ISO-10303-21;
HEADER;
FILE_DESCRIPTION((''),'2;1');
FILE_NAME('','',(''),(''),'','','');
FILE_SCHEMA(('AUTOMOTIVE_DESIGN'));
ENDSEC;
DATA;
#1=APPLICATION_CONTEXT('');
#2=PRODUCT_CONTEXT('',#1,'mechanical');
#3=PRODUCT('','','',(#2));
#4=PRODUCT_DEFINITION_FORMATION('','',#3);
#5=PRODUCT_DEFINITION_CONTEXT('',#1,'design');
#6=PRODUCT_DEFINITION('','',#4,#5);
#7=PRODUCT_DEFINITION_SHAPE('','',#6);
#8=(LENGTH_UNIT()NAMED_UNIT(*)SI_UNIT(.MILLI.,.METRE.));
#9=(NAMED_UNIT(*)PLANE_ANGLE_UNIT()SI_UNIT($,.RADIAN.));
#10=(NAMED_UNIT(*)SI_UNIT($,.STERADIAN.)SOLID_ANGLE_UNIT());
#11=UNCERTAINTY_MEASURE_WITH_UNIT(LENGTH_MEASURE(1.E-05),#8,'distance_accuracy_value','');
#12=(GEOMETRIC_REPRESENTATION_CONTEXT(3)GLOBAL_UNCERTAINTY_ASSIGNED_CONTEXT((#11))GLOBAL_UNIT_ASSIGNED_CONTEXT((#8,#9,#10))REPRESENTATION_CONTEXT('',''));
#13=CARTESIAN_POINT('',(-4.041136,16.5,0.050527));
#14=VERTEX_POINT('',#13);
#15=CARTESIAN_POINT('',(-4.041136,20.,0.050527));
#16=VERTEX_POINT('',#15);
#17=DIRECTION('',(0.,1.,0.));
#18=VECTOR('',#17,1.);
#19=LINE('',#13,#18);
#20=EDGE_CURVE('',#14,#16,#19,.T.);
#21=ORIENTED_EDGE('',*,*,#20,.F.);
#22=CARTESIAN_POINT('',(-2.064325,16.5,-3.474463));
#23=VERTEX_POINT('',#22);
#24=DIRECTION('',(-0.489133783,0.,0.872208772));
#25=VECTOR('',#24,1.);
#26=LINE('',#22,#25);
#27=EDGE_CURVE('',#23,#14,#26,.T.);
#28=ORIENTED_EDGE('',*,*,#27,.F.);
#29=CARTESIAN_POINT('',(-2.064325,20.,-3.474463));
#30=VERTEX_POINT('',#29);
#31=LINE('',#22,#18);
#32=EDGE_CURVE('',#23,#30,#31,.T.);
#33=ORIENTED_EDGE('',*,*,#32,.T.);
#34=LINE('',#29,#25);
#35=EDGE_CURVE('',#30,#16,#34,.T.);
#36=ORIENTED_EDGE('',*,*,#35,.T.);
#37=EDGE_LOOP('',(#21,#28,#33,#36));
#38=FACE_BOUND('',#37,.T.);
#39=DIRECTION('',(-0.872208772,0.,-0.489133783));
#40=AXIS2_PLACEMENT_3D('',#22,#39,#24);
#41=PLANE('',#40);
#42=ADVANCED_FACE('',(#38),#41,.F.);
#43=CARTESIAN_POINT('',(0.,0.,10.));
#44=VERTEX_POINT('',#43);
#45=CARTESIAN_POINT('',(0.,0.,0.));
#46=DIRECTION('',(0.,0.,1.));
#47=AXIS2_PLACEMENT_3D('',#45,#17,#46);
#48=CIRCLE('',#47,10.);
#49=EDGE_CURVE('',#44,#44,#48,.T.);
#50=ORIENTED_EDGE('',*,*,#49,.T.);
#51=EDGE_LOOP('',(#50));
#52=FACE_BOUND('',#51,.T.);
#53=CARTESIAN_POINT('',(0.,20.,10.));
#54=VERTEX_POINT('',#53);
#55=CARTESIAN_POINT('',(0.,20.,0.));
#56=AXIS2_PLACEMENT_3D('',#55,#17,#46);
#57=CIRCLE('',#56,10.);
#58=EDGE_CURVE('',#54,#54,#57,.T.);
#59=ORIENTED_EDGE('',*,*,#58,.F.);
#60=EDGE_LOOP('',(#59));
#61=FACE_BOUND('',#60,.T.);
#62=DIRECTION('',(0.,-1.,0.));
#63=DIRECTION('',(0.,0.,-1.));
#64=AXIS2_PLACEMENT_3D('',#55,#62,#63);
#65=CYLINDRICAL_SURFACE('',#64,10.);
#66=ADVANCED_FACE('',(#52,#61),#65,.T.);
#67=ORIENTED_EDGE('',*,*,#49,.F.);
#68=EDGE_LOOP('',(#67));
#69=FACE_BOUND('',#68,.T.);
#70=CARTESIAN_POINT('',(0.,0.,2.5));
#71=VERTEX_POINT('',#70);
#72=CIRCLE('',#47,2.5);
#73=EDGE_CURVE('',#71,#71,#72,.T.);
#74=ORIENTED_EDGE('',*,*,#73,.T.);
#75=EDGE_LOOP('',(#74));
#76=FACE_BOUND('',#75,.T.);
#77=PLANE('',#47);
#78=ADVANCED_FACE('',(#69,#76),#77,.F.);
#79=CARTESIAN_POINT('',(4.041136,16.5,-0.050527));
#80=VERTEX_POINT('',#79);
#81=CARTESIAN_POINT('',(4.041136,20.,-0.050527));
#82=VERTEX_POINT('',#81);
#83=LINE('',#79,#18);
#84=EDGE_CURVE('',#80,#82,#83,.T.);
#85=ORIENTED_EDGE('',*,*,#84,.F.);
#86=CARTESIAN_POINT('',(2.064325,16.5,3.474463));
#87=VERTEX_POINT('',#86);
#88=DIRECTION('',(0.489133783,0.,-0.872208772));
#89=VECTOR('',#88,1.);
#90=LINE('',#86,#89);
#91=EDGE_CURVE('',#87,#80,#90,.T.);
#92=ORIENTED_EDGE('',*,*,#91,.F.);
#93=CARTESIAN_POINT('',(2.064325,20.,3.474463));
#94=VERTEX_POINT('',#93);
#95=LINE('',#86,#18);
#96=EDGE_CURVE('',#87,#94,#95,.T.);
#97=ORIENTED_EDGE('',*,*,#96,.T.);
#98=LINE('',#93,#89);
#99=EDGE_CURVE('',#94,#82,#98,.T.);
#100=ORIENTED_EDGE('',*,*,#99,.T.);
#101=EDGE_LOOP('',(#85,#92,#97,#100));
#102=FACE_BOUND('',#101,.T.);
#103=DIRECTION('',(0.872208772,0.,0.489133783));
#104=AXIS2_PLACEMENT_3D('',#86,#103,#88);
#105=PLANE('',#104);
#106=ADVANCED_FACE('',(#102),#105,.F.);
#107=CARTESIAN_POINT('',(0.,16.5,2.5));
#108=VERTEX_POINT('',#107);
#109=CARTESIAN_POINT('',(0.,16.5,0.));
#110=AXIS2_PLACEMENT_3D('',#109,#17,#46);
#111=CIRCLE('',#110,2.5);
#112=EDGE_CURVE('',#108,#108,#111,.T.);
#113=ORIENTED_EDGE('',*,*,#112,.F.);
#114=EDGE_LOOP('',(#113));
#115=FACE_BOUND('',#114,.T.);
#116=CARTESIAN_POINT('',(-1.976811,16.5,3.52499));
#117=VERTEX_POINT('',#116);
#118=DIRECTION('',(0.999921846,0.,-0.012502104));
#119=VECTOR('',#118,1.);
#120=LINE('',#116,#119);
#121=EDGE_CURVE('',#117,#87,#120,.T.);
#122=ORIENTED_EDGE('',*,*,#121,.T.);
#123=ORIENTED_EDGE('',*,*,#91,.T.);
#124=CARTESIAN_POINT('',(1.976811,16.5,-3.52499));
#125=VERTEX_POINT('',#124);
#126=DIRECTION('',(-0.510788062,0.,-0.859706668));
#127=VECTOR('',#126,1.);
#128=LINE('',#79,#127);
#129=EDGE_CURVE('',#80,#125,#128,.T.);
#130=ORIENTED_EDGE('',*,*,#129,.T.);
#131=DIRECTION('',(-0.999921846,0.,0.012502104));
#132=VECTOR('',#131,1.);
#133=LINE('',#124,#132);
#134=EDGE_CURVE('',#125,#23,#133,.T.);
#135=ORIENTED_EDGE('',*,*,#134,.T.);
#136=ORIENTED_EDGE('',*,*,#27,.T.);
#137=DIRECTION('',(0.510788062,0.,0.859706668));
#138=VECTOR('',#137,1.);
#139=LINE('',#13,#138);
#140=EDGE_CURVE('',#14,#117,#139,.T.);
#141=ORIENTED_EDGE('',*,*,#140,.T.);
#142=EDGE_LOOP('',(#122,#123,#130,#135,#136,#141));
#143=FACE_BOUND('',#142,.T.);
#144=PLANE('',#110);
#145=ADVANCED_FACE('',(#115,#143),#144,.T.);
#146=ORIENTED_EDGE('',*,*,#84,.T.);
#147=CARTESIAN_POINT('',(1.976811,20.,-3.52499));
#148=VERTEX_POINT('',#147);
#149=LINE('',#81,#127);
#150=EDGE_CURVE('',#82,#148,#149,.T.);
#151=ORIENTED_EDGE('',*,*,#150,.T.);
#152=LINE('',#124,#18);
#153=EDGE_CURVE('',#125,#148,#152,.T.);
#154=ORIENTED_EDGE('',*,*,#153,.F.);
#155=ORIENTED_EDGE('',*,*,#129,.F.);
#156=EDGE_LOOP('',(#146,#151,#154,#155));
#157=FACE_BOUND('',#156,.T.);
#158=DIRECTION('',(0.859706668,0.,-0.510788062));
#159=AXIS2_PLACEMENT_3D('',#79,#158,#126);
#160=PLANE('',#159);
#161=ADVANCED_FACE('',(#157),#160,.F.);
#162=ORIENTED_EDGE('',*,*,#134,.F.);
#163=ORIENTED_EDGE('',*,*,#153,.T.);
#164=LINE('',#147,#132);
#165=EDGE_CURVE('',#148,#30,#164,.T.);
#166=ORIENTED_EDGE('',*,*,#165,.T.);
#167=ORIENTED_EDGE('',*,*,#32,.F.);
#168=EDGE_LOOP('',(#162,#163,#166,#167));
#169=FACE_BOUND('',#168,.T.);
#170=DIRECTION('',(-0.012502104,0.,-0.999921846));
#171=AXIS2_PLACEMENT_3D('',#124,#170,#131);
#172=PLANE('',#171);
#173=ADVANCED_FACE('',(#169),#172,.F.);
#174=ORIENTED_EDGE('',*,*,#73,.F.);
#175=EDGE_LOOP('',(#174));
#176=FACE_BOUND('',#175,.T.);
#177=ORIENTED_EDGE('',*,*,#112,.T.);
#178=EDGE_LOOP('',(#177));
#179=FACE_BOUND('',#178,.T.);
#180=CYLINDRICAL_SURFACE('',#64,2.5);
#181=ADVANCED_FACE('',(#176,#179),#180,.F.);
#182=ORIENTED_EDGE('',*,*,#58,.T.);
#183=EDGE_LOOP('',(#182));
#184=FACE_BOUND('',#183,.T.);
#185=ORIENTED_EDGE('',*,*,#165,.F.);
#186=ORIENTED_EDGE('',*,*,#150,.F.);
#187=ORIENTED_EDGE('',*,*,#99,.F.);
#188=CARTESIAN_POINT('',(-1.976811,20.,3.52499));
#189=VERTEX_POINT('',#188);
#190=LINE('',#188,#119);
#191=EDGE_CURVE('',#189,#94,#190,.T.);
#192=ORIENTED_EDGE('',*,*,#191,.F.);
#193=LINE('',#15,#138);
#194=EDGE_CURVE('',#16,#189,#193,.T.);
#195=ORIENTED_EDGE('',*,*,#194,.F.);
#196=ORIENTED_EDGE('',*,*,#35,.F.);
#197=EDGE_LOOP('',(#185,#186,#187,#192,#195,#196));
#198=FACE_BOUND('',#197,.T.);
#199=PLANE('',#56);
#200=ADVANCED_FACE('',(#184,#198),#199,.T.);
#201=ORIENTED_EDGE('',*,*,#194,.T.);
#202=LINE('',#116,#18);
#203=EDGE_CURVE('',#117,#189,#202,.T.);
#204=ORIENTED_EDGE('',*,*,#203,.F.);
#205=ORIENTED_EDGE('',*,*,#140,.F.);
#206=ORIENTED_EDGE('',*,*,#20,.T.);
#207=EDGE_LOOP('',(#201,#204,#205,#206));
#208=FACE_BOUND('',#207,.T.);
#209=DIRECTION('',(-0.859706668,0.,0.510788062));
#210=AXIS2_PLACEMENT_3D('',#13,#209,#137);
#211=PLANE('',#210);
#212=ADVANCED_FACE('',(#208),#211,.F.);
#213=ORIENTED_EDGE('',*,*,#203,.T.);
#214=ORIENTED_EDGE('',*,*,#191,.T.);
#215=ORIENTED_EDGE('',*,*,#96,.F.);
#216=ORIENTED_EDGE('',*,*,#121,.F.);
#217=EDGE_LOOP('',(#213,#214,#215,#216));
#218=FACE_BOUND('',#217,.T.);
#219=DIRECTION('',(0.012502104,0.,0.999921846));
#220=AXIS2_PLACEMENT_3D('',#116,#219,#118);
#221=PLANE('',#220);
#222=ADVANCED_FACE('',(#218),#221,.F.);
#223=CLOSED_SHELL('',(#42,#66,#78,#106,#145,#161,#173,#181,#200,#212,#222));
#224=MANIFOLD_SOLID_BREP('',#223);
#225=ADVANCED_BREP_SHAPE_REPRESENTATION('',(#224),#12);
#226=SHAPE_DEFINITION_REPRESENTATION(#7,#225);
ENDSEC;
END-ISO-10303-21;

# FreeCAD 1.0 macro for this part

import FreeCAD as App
import Part
import Sketcher

V = App.Vector
Q = App.Units.Quantity

doc = App.newDocument("Part")
body = doc.addObject("PartDesign::Body", "Body")

sketch1 = doc.addObject("Sketcher::SketchObject", "Sketch")
body.addObject(sketch1)
sketch1.AttachmentSupport = (doc.XZ_Plane, [""])
sketch1.MapMode = "FlatFace"
sketch1.addGeometry(Part.Circle(V(0, 0, 0), V(0, 0, 1), 10), False)
sketch1.addGeometry(Part.Circle(V(0, 0, 0), V(0, 0, 1), 2.5), False)
sketch1.addConstraint(Sketcher.Constraint("Coincident", 0, 3, -1, 1))
sketch1.addConstraint(Sketcher.Constraint("Coincident", 1, 3, -1, 1))
sketch1.addConstraint(Sketcher.Constraint("Diameter", 0, Q("20 mm")))
sketch1.addConstraint(Sketcher.Constraint("Diameter", 1, Q("5 mm")))
pad1 = doc.addObject("PartDesign::Pad", "Pad")
body.addObject(pad1)
pad1.Profile = sketch1
pad1.Length = 20
pad1.Reversed = True

sketch2 = doc.addObject("Sketcher::SketchObject", "Sketch001")
body.addObject(sketch2)
sketch2.AttachmentSupport = (doc.XZ_Plane, [""])
sketch2.MapMode = "FlatFace"
sketch2.AttachmentOffset = App.Placement(V(0, 0, -20), App.Rotation())
sketch2.addGeometry(Part.LineSegment(V(2.064325, 3.474463, 0), V(4.041136, -0.050527, 0)), False)
sketch2.addGeometry(Part.LineSegment(V(4.041136, -0.050527, 0), V(1.976811, -3.52499, 0)), False)
sketch2.addGeometry(Part.LineSegment(V(1.976811, -3.52499, 0), V(-2.064325, -3.474463, 0)), False)
sketch2.addGeometry(Part.LineSegment(V(-2.064325, -3.474463, 0), V(-4.041136, 0.050527, 0)), False)
sketch2.addGeometry(Part.LineSegment(V(-4.041136, 0.050527, 0), V(-1.976811, 3.52499, 0)), False)
sketch2.addGeometry(Part.LineSegment(V(-1.976811, 3.52499, 0), V(2.064325, 3.474463, 0)), False)
sketch2.addConstraint(Sketcher.Constraint("Coincident", 0, 2, 1, 1))
sketch2.addConstraint(Sketcher.Constraint("Coincident", 1, 2, 2, 1))
sketch2.addConstraint(Sketcher.Constraint("Coincident", 2, 2, 3, 1))
sketch2.addConstraint(Sketcher.Constraint("Coincident", 3, 2, 4, 1))
sketch2.addConstraint(Sketcher.Constraint("Coincident", 4, 2, 5, 1))
sketch2.addConstraint(Sketcher.Constraint("Coincident", 5, 2, 0, 1))
sketch2.addConstraint(Sketcher.Constraint("Symmetric", 0, 2, 3, 2, -1, 1))
sketch2.addConstraint(Sketcher.Constraint("Symmetric", 1, 2, 4, 2, -1, 1))
sketch2.addConstraint(Sketcher.Constraint("Symmetric", 2, 2, 5, 2, -1, 1))
sketch2.addConstraint(Sketcher.Constraint("Equal", 0, 1))
sketch2.addConstraint(Sketcher.Constraint("Equal", 1, 2))
sketch2.addConstraint(Sketcher.Constraint("Distance", 0, Q("4.041452 mm")))
sketch2.addConstraint(Sketcher.Constraint("DistanceX", -1, 1, 1, 2, Q("1.976811 mm")))
sketch2.addConstraint(Sketcher.Constraint("DistanceY", 1, 2, -1, 1, Q("3.52499 mm")))
sketch2.addConstraint(Sketcher.Constraint("DistanceX", 2, 2, 0, 2, Q("6.105461 mm")))
pocket1 = doc.addObject("PartDesign::Pocket", "Pocket")
body.addObject(pocket1)
pocket1.Profile = sketch2
pocket1.Length = 3.5
pocket1.Reversed = True

doc.recompute()
